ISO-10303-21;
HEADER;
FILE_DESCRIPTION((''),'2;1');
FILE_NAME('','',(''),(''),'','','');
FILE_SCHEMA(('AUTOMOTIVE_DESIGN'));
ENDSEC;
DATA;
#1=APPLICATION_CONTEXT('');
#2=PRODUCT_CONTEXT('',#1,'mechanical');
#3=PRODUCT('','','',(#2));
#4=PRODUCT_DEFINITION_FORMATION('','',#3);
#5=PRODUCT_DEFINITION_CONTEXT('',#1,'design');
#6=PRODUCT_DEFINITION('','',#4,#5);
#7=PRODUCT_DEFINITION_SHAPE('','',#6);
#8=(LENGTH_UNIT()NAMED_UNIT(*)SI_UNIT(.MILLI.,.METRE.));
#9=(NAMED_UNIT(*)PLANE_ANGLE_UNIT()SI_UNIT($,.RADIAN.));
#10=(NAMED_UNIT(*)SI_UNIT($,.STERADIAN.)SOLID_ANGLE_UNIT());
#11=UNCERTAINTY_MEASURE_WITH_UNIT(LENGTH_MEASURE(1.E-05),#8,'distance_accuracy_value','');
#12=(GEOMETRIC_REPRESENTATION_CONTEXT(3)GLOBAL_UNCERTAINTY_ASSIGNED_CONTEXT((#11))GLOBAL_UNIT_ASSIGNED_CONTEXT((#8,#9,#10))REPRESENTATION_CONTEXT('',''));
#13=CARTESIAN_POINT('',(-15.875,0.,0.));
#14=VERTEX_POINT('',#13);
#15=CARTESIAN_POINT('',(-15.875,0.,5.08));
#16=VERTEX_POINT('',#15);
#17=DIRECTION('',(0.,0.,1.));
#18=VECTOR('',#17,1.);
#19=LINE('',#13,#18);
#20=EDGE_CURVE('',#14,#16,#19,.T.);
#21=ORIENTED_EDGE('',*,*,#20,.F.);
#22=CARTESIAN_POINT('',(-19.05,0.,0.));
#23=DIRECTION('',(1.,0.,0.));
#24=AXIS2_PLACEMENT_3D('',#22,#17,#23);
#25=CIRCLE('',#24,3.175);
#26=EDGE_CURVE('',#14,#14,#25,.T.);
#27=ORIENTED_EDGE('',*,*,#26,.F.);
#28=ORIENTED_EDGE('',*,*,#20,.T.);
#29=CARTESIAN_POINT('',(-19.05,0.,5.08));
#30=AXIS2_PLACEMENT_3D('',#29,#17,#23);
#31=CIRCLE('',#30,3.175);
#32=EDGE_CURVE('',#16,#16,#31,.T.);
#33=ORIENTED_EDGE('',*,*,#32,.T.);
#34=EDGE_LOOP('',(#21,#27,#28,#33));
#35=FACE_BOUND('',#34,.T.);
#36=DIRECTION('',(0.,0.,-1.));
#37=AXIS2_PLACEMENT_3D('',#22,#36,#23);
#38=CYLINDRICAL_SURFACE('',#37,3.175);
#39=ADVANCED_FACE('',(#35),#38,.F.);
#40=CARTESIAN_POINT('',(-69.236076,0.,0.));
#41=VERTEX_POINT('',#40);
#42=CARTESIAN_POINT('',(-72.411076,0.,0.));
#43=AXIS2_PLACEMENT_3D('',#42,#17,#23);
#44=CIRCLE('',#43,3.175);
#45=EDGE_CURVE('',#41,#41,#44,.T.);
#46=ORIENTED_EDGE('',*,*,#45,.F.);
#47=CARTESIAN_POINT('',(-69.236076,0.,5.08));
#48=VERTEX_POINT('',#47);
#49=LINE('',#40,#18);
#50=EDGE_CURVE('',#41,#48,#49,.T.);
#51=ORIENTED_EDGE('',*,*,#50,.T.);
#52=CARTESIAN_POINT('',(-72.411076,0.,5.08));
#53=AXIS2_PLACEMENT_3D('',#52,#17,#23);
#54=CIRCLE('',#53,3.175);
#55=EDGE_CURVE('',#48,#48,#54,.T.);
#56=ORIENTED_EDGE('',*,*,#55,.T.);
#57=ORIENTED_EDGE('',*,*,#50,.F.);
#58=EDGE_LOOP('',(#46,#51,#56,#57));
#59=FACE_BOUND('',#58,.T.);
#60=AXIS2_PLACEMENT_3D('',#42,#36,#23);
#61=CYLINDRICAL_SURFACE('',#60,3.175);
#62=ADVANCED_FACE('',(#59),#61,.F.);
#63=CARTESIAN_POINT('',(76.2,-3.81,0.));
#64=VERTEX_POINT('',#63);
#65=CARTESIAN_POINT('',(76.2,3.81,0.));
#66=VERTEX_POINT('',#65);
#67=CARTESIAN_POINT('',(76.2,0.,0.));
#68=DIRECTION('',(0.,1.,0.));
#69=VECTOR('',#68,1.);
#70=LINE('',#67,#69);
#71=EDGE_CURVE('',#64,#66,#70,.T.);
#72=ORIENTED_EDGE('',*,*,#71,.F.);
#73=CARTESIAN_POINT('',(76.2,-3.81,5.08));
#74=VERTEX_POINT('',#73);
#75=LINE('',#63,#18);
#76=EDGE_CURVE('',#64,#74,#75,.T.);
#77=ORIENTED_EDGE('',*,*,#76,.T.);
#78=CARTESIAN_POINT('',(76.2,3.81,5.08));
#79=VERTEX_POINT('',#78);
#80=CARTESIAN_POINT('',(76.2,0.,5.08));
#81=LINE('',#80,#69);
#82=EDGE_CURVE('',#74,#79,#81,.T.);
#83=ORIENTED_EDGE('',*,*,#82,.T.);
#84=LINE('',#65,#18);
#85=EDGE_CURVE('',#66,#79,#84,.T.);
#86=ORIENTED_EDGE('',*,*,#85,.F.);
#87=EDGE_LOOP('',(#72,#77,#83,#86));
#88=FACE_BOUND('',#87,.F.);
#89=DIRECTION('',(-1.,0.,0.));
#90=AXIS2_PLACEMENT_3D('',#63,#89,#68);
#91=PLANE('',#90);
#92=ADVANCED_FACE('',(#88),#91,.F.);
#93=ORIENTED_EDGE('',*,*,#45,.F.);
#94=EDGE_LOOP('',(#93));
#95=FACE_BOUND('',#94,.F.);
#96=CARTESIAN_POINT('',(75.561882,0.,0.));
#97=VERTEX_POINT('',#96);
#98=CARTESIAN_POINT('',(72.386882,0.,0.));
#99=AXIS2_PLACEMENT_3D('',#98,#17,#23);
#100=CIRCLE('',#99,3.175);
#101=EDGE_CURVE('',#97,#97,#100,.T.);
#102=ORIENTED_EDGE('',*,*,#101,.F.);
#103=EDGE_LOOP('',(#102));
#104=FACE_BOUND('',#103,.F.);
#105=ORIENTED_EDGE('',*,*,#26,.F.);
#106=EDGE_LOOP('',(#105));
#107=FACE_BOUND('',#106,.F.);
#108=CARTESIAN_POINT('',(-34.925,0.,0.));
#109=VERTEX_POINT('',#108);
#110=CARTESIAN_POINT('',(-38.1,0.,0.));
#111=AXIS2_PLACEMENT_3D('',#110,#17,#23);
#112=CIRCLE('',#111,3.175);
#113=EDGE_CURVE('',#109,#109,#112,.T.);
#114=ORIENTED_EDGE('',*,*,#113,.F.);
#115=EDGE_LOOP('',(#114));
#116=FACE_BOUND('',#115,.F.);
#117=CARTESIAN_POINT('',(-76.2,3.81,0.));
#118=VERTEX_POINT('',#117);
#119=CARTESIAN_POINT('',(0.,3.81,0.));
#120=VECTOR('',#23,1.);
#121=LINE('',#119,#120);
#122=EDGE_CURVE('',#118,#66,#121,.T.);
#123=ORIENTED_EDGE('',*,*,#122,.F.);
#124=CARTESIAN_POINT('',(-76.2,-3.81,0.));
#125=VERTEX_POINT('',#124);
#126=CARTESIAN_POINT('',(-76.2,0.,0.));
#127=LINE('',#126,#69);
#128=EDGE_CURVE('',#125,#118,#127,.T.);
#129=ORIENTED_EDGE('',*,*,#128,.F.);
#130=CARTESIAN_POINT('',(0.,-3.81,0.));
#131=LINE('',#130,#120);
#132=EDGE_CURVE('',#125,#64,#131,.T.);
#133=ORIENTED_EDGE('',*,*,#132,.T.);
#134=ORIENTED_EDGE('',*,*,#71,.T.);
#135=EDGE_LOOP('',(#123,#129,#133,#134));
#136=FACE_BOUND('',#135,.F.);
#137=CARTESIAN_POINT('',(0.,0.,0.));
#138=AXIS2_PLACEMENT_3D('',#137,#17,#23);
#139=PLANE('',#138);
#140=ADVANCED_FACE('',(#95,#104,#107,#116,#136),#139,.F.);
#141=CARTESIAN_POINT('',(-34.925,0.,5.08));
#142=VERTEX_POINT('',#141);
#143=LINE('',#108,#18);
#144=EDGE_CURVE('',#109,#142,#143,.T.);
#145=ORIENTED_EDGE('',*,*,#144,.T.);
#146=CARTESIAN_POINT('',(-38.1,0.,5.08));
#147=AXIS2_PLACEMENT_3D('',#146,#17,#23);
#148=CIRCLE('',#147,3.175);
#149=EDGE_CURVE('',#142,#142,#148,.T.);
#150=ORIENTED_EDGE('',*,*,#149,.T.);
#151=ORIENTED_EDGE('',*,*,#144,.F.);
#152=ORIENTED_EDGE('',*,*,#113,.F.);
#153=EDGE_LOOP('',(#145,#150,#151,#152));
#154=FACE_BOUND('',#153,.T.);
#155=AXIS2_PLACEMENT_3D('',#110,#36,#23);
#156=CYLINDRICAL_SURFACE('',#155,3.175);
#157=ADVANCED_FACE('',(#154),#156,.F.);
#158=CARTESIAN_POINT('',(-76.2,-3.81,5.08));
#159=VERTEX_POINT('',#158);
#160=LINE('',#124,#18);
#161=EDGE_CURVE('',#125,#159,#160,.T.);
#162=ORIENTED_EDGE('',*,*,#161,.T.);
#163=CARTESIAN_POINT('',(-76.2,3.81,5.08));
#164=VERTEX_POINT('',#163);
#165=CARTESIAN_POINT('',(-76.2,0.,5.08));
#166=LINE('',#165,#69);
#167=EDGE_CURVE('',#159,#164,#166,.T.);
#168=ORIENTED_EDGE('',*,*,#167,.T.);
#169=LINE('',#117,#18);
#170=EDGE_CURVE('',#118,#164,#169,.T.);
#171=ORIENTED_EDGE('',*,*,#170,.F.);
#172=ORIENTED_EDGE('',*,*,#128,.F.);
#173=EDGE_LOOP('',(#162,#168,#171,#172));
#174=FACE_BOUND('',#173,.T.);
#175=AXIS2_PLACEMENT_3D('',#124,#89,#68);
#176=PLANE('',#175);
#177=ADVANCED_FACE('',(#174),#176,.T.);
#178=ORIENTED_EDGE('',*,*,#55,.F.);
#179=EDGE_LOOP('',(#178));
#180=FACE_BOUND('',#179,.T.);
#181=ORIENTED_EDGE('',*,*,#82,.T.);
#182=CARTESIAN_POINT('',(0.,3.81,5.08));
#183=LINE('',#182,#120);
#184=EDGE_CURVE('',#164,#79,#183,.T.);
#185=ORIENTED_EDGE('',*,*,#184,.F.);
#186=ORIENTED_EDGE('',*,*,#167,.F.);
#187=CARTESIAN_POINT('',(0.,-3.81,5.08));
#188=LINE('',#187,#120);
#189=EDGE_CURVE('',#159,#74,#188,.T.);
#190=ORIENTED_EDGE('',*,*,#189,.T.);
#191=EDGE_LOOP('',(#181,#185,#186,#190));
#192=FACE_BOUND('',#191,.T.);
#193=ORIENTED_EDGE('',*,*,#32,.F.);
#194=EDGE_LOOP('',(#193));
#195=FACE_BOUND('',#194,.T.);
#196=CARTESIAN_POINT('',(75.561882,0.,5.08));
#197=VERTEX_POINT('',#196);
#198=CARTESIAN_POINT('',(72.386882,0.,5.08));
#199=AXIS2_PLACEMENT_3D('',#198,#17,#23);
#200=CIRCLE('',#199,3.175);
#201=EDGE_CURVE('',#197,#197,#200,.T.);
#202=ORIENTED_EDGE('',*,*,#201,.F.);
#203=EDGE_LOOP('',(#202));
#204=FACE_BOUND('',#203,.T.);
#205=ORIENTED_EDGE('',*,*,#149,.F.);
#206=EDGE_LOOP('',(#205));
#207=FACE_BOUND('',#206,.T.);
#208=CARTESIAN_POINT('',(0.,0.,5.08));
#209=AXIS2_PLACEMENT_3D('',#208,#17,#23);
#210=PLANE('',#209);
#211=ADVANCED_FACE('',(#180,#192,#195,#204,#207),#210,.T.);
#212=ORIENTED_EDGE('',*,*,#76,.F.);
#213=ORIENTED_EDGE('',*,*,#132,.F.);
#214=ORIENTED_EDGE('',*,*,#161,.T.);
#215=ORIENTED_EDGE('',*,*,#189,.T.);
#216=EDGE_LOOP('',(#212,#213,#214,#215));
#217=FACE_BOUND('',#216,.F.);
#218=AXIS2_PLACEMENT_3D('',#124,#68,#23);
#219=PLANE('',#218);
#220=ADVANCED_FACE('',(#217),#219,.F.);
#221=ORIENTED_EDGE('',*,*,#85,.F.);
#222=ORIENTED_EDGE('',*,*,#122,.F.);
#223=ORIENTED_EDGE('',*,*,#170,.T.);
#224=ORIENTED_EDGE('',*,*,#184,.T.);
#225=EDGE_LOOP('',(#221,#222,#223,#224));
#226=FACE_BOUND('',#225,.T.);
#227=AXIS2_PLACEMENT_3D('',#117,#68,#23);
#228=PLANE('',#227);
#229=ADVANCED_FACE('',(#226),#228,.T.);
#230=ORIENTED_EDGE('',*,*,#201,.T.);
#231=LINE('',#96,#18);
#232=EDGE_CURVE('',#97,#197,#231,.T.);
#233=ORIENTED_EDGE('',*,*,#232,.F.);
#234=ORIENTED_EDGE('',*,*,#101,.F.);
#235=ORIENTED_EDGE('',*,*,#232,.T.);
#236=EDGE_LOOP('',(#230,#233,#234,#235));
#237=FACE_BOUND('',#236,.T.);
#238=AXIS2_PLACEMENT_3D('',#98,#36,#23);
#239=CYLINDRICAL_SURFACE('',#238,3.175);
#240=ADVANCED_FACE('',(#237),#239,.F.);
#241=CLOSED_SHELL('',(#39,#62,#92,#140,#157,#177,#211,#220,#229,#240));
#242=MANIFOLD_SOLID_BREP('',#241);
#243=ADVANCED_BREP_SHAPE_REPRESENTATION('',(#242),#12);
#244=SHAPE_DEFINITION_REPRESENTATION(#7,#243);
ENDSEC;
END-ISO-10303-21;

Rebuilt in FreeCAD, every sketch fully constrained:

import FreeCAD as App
import Part
import Sketcher

V = App.Vector
Q = App.Units.Quantity


def add_polygon(sketch, points):
    """Adds a closed chain of lines whose ends are joined by coincident constraints."""
    first, n = sketch.GeometryCount, len(points)
    for a, b in zip(points, points[1:] + points[:1]):
        sketch.addGeometry(Part.LineSegment(App.Vector(*a, 0), App.Vector(*b, 0)), False)
    for i in range(n):
        sketch.addConstraint(Sketcher.Constraint("Coincident", first + i, 2, first + (i + 1) % n, 1))

doc = App.newDocument("Part")
body = doc.addObject("PartDesign::Body", "Body")

# Sketch on XY plane
sketch1 = body.newObject("Sketcher::SketchObject", "Sketch")
sketch1.AttachmentSupport = (doc.getObject("XY_Plane"), [""])
sketch1.MapMode = "FlatFace"
add_polygon(sketch1, [(-76.2, 3.8), (-76.2, -3.8), (76.2, -3.8), (76.2, 3.8)])  # lines 0-3
sketch1.addGeometry(Part.Circle(V(-72.4, 0, 0), V(0, 0, 1), 3.2), False)  # 4
sketch1.addGeometry(Part.Circle(V(-38.1, 0, 0), V(0, 0, 1), 3.2), False)  # 5
sketch1.addGeometry(Part.Circle(V(-19.1, 0, 0), V(0, 0, 1), 3.2), False)  # 6
sketch1.addGeometry(Part.Circle(V(72.4, 0, 0), V(0, 0, 1), 3.2), False)  # 7
sketch1.addConstraint([
    Sketcher.Constraint("Vertical", 0),
    Sketcher.Constraint("Horizontal", 1),
    Sketcher.Constraint("Vertical", 2),
    Sketcher.Constraint("Horizontal", 3),
    Sketcher.Constraint("Equal", 4, 5),
    Sketcher.Constraint("Equal", 5, 6),
    Sketcher.Constraint("Equal", 6, 7),
    Sketcher.Constraint("Symmetric", 0, 2, 2, 2, -1, 1),
    Sketcher.Constraint("PointOnObject", 4, 3, -1),
    Sketcher.Constraint("PointOnObject", 5, 3, -1),
    Sketcher.Constraint("PointOnObject", 6, 3, -1),
    Sketcher.Constraint("PointOnObject", 7, 3, -1),
    Sketcher.Constraint("Diameter", 4, Q("0.25 in")),
    Sketcher.Constraint("DistanceX", 1, 1, 1, 2, Q("6 in")),
    Sketcher.Constraint("DistanceY", 0, 2, 0, 1, Q("0.3 in")),
    Sketcher.Constraint("DistanceX", 5, 3, -1, 1, Q("1.5 in")),
    Sketcher.Constraint("DistanceX", 6, 3, -1, 1, Q("0.75 in")),
    Sketcher.Constraint("DistanceX", -1, 1, 7, 3, Q("72.386882 mm")),
    Sketcher.Constraint("DistanceX", 4, 3, 7, 3, Q("144.797958 mm")),
])
pad1 = body.newObject("PartDesign::Pad", "Pad")
pad1.Profile = sketch1
pad1.Length = Q("0.2 in")
body2 = doc.addObject("PartDesign::Body", "Body001")

# Sketch on XY plane
sketch2 = body2.newObject("Sketcher::SketchObject", "Sketch001")
sketch2.AttachmentSupport = (doc.getObject("XY_Plane001"), [""])
sketch2.MapMode = "FlatFace"
add_polygon(sketch2, [(-76.2, 3.8), (-76.2, -3.8), (76.2, -3.8), (76.2, 3.8)])  # lines 0-3
sketch2.addGeometry(Part.Circle(V(-72.4, 0, 0), V(0, 0, 1), 3.2), False)  # 4
sketch2.addGeometry(Part.Circle(V(-38.1, 0, 0), V(0, 0, 1), 3.2), False)  # 5
sketch2.addGeometry(Part.Circle(V(-19.1, 0, 0), V(0, 0, 1), 3.2), False)  # 6
sketch2.addGeometry(Part.Circle(V(72.4, 0, 0), V(0, 0, 1), 3.2), False)  # 7
sketch2.addConstraint([
    Sketcher.Constraint("Vertical", 0),
    Sketcher.Constraint("Horizontal", 1),
    Sketcher.Constraint("Vertical", 2),
    Sketcher.Constraint("Horizontal", 3),
    Sketcher.Constraint("Equal", 4, 5),
    Sketcher.Constraint("Equal", 5, 6),
    Sketcher.Constraint("Equal", 6, 7),
    Sketcher.Constraint("Symmetric", 0, 2, 2, 2, -1, 1),
    Sketcher.Constraint("PointOnObject", 4, 3, -1),
    Sketcher.Constraint("PointOnObject", 5, 3, -1),
    Sketcher.Constraint("PointOnObject", 6, 3, -1),
    Sketcher.Constraint("PointOnObject", 7, 3, -1),
    Sketcher.Constraint("Diameter", 4, Q("0.25 in")),
    Sketcher.Constraint("DistanceX", 1, 1, 1, 2, Q("6 in")),
    Sketcher.Constraint("DistanceY", 0, 2, 0, 1, Q("0.3 in")),
    Sketcher.Constraint("DistanceX", 5, 3, -1, 1, Q("1.5 in")),
    Sketcher.Constraint("DistanceX", 6, 3, -1, 1, Q("0.75 in")),
    Sketcher.Constraint("DistanceX", -1, 1, 7, 3, Q("72.386882 mm")),
    Sketcher.Constraint("DistanceX", 4, 3, 7, 3, Q("144.797958 mm")),
])
pad2 = body2.newObject("PartDesign::Pad", "Pad001")
pad2.Profile = sketch2
pad2.Length = Q("0.2 in")
body.Visibility = False

doc.recompute()
